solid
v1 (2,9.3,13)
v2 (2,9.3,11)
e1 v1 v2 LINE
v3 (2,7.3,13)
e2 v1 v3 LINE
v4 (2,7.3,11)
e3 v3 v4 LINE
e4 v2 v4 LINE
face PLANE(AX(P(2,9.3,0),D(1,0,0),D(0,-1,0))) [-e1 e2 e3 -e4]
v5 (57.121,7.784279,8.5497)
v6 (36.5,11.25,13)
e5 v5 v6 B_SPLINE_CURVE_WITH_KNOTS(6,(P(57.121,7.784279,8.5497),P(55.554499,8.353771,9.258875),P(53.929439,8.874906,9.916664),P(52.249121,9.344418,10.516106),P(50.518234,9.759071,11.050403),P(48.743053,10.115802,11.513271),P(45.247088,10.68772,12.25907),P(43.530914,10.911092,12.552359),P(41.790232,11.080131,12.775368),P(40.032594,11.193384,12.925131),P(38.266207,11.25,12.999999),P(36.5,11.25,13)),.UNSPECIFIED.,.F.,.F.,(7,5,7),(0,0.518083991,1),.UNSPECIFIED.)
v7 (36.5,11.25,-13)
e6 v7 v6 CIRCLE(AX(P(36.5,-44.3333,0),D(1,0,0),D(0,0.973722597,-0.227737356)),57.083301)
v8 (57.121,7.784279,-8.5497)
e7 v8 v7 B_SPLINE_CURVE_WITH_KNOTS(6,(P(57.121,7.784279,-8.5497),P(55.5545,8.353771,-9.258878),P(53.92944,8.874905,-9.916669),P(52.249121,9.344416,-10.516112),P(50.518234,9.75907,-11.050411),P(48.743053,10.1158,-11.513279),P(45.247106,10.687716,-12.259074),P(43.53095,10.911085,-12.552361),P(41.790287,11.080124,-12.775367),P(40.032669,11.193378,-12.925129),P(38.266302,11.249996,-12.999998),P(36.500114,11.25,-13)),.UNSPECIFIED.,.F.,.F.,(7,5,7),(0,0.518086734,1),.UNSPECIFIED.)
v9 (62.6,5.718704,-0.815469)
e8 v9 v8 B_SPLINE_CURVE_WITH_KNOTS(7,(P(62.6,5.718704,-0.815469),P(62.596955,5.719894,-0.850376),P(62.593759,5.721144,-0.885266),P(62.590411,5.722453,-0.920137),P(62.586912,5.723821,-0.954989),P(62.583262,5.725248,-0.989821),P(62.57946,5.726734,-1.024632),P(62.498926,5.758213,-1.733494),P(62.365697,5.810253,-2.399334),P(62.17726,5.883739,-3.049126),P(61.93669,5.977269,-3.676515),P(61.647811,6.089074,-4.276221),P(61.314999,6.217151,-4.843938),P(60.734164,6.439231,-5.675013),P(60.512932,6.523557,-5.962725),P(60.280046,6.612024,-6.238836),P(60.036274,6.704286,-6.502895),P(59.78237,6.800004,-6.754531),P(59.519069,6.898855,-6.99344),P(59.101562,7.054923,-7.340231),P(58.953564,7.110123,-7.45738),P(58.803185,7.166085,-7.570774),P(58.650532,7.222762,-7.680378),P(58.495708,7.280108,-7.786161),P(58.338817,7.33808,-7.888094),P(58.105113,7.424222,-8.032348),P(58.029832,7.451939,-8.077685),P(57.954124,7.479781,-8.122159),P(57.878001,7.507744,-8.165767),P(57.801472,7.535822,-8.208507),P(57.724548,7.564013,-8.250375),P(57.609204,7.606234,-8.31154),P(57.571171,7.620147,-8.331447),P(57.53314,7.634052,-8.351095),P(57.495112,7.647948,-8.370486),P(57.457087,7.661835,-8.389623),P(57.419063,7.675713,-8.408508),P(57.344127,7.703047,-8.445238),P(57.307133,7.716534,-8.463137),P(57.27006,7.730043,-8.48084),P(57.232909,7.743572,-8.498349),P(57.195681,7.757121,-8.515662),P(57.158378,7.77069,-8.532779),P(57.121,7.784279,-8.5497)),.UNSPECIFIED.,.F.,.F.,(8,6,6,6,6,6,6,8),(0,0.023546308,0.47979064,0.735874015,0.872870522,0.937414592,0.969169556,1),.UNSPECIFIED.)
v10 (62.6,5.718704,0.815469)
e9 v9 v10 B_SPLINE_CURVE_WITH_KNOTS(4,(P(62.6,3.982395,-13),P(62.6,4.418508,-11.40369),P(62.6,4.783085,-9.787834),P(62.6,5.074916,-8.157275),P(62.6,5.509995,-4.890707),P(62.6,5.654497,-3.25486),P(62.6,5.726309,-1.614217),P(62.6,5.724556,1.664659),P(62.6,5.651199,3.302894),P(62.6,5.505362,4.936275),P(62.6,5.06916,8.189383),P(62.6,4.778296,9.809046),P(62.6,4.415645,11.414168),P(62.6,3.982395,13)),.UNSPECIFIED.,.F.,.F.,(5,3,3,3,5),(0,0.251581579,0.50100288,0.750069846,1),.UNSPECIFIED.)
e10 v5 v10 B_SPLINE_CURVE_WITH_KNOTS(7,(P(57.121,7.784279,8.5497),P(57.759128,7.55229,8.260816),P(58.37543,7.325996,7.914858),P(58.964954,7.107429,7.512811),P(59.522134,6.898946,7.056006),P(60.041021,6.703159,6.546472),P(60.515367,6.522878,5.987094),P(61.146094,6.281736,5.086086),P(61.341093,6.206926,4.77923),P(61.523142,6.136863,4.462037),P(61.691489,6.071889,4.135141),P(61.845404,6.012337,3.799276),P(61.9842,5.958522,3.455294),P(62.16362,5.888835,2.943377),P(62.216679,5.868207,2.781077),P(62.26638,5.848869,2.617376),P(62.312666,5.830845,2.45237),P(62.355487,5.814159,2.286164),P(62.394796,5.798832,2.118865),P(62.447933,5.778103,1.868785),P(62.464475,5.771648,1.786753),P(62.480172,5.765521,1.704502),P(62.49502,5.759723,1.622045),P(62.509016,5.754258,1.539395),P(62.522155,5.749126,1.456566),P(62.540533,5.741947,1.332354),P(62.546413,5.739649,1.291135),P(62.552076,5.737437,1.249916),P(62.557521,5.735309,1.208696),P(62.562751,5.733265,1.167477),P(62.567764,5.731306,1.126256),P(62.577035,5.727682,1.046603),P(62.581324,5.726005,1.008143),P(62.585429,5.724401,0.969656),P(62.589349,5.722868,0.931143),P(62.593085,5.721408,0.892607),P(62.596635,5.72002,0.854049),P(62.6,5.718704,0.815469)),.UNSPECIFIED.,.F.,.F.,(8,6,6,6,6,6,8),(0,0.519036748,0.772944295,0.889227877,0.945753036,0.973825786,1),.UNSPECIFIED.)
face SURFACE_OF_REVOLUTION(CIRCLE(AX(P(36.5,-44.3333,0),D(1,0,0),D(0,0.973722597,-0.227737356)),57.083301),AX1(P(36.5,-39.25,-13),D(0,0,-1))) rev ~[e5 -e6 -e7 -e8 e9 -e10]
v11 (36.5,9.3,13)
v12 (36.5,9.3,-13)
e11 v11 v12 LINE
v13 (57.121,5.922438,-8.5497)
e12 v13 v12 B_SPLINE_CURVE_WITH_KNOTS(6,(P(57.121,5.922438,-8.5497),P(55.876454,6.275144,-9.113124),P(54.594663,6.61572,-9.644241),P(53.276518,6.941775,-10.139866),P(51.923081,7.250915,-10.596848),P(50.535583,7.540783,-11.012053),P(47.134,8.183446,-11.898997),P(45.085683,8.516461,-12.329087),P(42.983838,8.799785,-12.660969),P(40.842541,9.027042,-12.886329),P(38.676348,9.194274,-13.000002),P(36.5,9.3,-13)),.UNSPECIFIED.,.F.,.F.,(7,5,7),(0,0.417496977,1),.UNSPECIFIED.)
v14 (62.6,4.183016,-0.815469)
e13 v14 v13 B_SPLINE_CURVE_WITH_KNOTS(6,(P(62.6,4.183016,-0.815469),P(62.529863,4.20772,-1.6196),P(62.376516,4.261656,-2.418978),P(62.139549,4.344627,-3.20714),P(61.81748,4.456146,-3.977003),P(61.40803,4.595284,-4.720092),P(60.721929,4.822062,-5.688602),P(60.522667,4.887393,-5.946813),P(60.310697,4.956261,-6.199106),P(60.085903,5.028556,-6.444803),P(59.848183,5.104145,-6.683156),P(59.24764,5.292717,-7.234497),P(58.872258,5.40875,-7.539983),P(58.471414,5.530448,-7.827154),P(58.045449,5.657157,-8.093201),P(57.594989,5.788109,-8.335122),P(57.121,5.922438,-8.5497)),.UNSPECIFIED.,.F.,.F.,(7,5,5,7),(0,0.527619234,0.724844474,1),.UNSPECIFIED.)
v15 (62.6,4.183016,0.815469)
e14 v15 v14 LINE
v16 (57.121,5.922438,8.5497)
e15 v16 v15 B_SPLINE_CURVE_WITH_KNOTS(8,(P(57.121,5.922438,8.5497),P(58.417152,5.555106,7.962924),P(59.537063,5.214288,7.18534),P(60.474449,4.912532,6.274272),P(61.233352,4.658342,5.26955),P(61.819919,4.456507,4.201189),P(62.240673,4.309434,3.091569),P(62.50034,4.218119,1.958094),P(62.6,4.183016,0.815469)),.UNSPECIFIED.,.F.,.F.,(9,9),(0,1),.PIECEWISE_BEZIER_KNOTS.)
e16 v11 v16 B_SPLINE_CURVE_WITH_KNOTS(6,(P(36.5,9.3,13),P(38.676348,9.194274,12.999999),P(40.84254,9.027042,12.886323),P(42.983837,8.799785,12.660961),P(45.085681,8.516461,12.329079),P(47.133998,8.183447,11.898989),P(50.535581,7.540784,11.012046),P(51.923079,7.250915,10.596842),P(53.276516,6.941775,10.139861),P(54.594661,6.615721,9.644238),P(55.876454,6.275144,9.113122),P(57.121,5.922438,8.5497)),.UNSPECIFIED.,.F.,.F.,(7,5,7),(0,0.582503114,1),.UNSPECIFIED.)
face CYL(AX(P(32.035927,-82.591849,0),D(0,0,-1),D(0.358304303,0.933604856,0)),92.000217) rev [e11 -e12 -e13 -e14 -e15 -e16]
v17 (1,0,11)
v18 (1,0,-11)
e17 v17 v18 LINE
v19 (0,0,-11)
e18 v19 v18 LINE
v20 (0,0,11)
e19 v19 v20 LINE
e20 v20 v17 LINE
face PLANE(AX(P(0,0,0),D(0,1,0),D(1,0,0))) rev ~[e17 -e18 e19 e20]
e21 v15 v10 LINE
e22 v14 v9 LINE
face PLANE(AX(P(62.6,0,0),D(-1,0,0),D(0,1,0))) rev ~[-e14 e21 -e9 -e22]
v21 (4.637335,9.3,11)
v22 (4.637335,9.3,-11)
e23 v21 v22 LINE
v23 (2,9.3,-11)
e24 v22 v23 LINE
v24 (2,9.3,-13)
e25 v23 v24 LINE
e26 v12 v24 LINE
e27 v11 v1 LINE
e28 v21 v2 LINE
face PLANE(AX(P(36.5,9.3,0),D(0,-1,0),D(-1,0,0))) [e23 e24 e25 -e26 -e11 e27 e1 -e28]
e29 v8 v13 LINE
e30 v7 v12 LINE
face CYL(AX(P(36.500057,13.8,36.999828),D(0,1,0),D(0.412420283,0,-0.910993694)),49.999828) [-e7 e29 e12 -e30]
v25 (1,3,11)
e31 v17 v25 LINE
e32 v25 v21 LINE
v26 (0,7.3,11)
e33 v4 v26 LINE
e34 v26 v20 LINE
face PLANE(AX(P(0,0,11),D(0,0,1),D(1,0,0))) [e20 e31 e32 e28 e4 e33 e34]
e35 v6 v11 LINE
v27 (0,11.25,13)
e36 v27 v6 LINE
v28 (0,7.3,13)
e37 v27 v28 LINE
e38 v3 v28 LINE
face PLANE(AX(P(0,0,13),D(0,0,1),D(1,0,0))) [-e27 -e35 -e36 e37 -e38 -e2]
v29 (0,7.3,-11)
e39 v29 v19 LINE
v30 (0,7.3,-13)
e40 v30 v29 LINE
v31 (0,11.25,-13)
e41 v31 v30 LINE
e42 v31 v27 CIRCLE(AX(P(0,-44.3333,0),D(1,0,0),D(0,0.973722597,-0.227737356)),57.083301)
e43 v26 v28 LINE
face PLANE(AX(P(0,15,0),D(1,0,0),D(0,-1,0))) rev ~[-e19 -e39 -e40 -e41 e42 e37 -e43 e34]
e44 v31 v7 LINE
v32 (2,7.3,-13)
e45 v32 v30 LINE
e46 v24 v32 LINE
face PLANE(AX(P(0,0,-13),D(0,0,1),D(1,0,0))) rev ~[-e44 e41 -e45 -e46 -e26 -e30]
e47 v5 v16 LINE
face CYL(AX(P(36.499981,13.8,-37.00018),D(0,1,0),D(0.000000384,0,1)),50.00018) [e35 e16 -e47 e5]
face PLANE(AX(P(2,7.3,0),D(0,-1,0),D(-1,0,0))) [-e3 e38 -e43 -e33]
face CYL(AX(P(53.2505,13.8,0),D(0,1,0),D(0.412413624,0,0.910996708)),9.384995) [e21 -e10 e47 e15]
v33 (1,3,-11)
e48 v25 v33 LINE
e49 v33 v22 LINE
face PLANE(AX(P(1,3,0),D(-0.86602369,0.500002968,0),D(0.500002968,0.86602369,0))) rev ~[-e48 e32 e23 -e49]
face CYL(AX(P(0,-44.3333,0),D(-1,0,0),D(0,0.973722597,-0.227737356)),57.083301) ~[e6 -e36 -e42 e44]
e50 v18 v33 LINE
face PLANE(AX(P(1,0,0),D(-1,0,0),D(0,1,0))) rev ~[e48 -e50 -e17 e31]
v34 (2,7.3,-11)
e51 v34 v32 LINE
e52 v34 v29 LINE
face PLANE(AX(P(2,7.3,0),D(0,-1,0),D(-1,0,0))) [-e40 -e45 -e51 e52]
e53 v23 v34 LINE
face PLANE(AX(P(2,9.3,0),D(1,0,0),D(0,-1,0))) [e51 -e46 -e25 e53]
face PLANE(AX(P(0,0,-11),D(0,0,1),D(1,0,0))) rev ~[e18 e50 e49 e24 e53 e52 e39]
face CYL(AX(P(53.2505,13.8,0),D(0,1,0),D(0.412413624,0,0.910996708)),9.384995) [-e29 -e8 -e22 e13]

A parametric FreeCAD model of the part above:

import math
import FreeCAD as App
import Part
import Sketcher

V = App.Vector
Q = App.Units.Quantity

doc = App.newDocument("Part")
params = doc.addObject("Spreadsheet::Sheet", "Params")
for row, (alias, value) in enumerate([
    ("sketch1_height", "15 mm"),
    ("sketch1_width", "62.6 mm"),
    ("pad1_length", "26 mm"),
    ("sketch2_height", "26 mm"),
    ("sketch2_width", "9.5 mm"),
    ("pocket1_length", "36.5 mm"),
    ("sketch3_radius", "50 mm"),
    ("sketch3_width", "65 mm"),
    ("sketch3_height", "30 mm"),
    ("sketch3_height2", "26 mm"),
    ("sketch3_width2", "36.5 mm"),
    ("pocket2_length", "15 mm"),
    ("sketch4_height", "26 mm"),
    ("sketch4_width", "14.5 mm"),
    ("groove_angle", "35 deg"),
    ("sketch5_radius", "92 mm"),
    ("sketch5_width", "2 mm"),
    ("sketch5_width2", "65 mm"),
    ("sketch5_height", "59 mm"),
    ("sketch5_height2", "55 mm"),
    ("pocket3_length", "26 mm"),
    ("sketch6_width", "1 mm"),
    ("sketch6_height", "3 mm"),
    ("sketch6_height2", "10.75 mm"),
    ("pad2_length", "22 mm"),
], start=1):
    params.set(f"A{row}", alias)
    params.set(f"B{row}", "=" + value)
    params.setAlias(f"B{row}", alias)

body = doc.addObject("PartDesign::Body", "Body")

sketch1 = body.newObject("Sketcher::SketchObject", "Sketch")
sketch1.AttachmentSupport = (doc.getObject("XY_Plane"), [""])
sketch1.MapMode = "FlatFace"
sketch1.addGeometry(Part.LineSegment(V(63, 15, 0), V(0, 15, 0)), False)
sketch1.addGeometry(Part.LineSegment(V(0, 15, 0), V(0, 0, 0)), False)
sketch1.addGeometry(Part.LineSegment(V(0, 0, 0), V(63, 0, 0)), False)
sketch1.addGeometry(Part.LineSegment(V(63, 0, 0), V(63, 15, 0)), False)
sketch1.addConstraint(Sketcher.Constraint("Coincident", 0, 2, 1, 1))
sketch1.addConstraint(Sketcher.Constraint("Coincident", 1, 2, 2, 1))
sketch1.addConstraint(Sketcher.Constraint("Coincident", 2, 2, 3, 1))
sketch1.addConstraint(Sketcher.Constraint("Coincident", 3, 2, 0, 1))
sketch1.addConstraint(Sketcher.Constraint("Horizontal", 0))
sketch1.addConstraint(Sketcher.Constraint("Vertical", 1))
sketch1.addConstraint(Sketcher.Constraint("Horizontal", 2))
sketch1.addConstraint(Sketcher.Constraint("Vertical", 3))
sketch1.addConstraint(Sketcher.Constraint("Coincident", 1, 2, -1, 1))
sketch1.addConstraint(Sketcher.Constraint("DistanceY", 1, 2, 1, 1, 15.0))
sketch1.addConstraint(Sketcher.Constraint("DistanceX", 0, 2, 0, 1, 62.6))
sketch1.setExpression("Constraints[9]", "Params.sketch1_height")
sketch1.setExpression("Constraints[10]", "Params.sketch1_width")
pad1 = body.newObject("PartDesign::Pad", "Pad")
pad1.Profile = sketch1
pad1.setExpression("Length", "Params.pad1_length")
pad1.Midplane = True

sketch2 = body.newObject("Sketcher::SketchObject", "Sketch001")
sketch2.AttachmentSupport = (doc.getObject("YZ_Plane"), [""])
sketch2.MapMode = "FlatFace"
sketch2.addGeometry(Part.ArcOfCircle(Part.Circle(V(-44, 0, 0), V(0, 0, 1), 57), math.radians(-13), math.radians(13)), False)
sketch2.addGeometry(Part.LineSegment(V(11, -13, 0), V(21, -13, 0)), False)
sketch2.addGeometry(Part.LineSegment(V(21, -13, 0), V(21, 13, 0)), False)
sketch2.addGeometry(Part.LineSegment(V(21, 13, 0), V(11, 13, 0)), False)
sketch2.addConstraint(Sketcher.Constraint("Coincident", 0, 1, 1, 1))
sketch2.addConstraint(Sketcher.Constraint("Coincident", 1, 2, 2, 1))
sketch2.addConstraint(Sketcher.Constraint("Coincident", 2, 2, 3, 1))
sketch2.addConstraint(Sketcher.Constraint("Coincident", 3, 2, 0, 2))
sketch2.addConstraint(Sketcher.Constraint("Horizontal", 1))
sketch2.addConstraint(Sketcher.Constraint("Vertical", 2))
sketch2.addConstraint(Sketcher.Constraint("Horizontal", 3))
sketch2.addConstraint(Sketcher.Constraint("Symmetric", 0, 1, 3, 2, -1))
sketch2.addConstraint(Sketcher.Constraint("DistanceY", 2, 1, 2, 2, 26.0))
sketch2.addConstraint(Sketcher.Constraint("DistanceX", 1, 1, 1, 2, 9.5))
sketch2.addConstraint(Sketcher.Constraint("Radius", 0, 57.0833))
sketch2.addConstraint(Sketcher.Constraint("DistanceX", -1, 1, 0, 1, 11.25))
sketch2.setExpression("Constraints[8]", "Params.sketch2_height")
sketch2.setExpression("Constraints[9]", "Params.sketch2_width")
pocket1 = body.newObject("PartDesign::Pocket", "Pocket")
pocket1.Profile = sketch2
pocket1.setExpression("Length", "Params.pocket1_length")
pocket1.Reversed = True

sketch3 = body.newObject("Sketcher::SketchObject", "Sketch002")
sketch3.AttachmentSupport = (doc.getObject("XZ_Plane"), [""])
sketch3.MapMode = "FlatFace"
sketch3.AttachmentOffset = App.Placement(V(0, 0, -13.8), App.Rotation())
sketch3.addGeometry(Part.LineSegment(V(64, -16, 0), V(-1, -16, 0)), False)
sketch3.addGeometry(Part.LineSegment(V(-1, -16, 0), V(-1, 14, 0)), False)
sketch3.addGeometry(Part.LineSegment(V(-1, 14, 0), V(64, 14, 0)), False)
sketch3.addGeometry(Part.LineSegment(V(64, 14, 0), V(64, -16, 0)), False)
sketch3.addGeometry(Part.LineSegment(V(0, 13, 0), V(0, -13, 0)), False)
sketch3.addGeometry(Part.LineSegment(V(0, -13, 0), V(36, -13, 0)), False)
sketch3.addGeometry(Part.ArcOfCircle(Part.Circle(V(36, 37, 0), V(0, 0, 1), 50), math.radians(-90), math.radians(-66)), False)
sketch3.addGeometry(Part.ArcOfCircle(Part.Circle(V(53, 0, 0), V(0, 0, 1), 9), math.radians(-66), math.radians(66)), False)
sketch3.addGeometry(Part.ArcOfCircle(Part.Circle(V(36, -37, 0), V(0, 0, 1), 50), math.radians(66), math.radians(90)), False)
sketch3.addGeometry(Part.LineSegment(V(36, 13, 0), V(0, 13, 0)), False)
sketch3.addConstraint(Sketcher.Constraint("Coincident", 0, 2, 1, 1))
sketch3.addConstraint(Sketcher.Constraint("Coincident", 1, 2, 2, 1))
sketch3.addConstraint(Sketcher.Constraint("Coincident", 2, 2, 3, 1))
sketch3.addConstraint(Sketcher.Constraint("Coincident", 3, 2, 0, 1))
sketch3.addConstraint(Sketcher.Constraint("Coincident", 4, 2, 5, 1))
sketch3.addConstraint(Sketcher.Constraint("Tangent", 5, 2, 6, 1))
sketch3.addConstraint(Sketcher.Constraint("Tangent", 6, 2, 7, 1))
sketch3.addConstraint(Sketcher.Constraint("Tangent", 7, 2, 8, 1))
sketch3.addConstraint(Sketcher.Constraint("Tangent", 8, 2, 9, 1))
sketch3.addConstraint(Sketcher.Constraint("Coincident", 9, 2, 4, 1))
sketch3.addConstraint(Sketcher.Constraint("Horizontal", 0))
sketch3.addConstraint(Sketcher.Constraint("Vertical", 1))
sketch3.addConstraint(Sketcher.Constraint("Horizontal", 2))
sketch3.addConstraint(Sketcher.Constraint("Vertical", 3))
sketch3.addConstraint(Sketcher.Constraint("Vertical", 4))
sketch3.addConstraint(Sketcher.Constraint("Horizontal", 5))
sketch3.addConstraint(Sketcher.Constraint("Horizontal", 9))
sketch3.addConstraint(Sketcher.Constraint("Equal", 6, 8))
sketch3.addConstraint(Sketcher.Constraint("Symmetric", 4, 2, 9, 2, -1, 1))
sketch3.addConstraint(Sketcher.Constraint("PointOnObject", 7, 3, -1))
sketch3.addConstraint(Sketcher.Constraint("Radius", 6, 50.0))
sketch3.addConstraint(Sketcher.Constraint("DistanceX", 0, 2, 0, 1, 65.0))
sketch3.addConstraint(Sketcher.Constraint("DistanceY", 1, 1, 1, 2, 30.0))
sketch3.addConstraint(Sketcher.Constraint("DistanceY", 4, 2, 4, 1, 26.0))
sketch3.addConstraint(Sketcher.Constraint("DistanceX", 5, 1, 5, 2, 36.5))
sketch3.addConstraint(Sketcher.Constraint("DistanceX", 0, 2, -1, 1, 1.0))
sketch3.addConstraint(Sketcher.Constraint("DistanceY", 0, 2, -1, 1, 16.0))
sketch3.addConstraint(Sketcher.Constraint("Radius", 7, 9.385))
sketch3.setExpression("Constraints[20]", "Params.sketch3_radius")
sketch3.setExpression("Constraints[21]", "Params.sketch3_width")
sketch3.setExpression("Constraints[22]", "Params.sketch3_height")
sketch3.setExpression("Constraints[23]", "Params.sketch3_height2")
sketch3.setExpression("Constraints[24]", "Params.sketch3_width2")
pocket2 = body.newObject("PartDesign::Pocket", "Pocket001")
pocket2.Profile = sketch3
pocket2.setExpression("Length", "Params.pocket2_length")
pocket2.Reversed = True

sketch4 = body.newObject("Sketcher::SketchObject", "Sketch003")
sketch4.AttachmentSupport = (doc.getObject("YZ_Plane"), [""])
sketch4.MapMode = "FlatFace"
sketch4.AttachmentOffset = App.Placement(V(0, 0, 36.5), App.Rotation())
sketch4.addGeometry(Part.ArcOfCircle(Part.Circle(V(-44, 0, 0), V(0, 0, 1), 57), math.radians(-13), math.radians(13)), False)
sketch4.addGeometry(Part.LineSegment(V(11, -13, 0), V(26, -13, 0)), False)
sketch4.addGeometry(Part.LineSegment(V(26, -13, 0), V(26, 13, 0)), False)
sketch4.addGeometry(Part.LineSegment(V(26, 13, 0), V(11, 13, 0)), False)
sketch4.addGeometry(Part.LineSegment(V(-39, 13, 0), V(-39, -13, 0)), True)
sketch4.addConstraint(Sketcher.Constraint("Coincident", 0, 1, 1, 1))
sketch4.addConstraint(Sketcher.Constraint("Coincident", 1, 2, 2, 1))
sketch4.addConstraint(Sketcher.Constraint("Coincident", 2, 2, 3, 1))
sketch4.addConstraint(Sketcher.Constraint("Coincident", 3, 2, 0, 2))
sketch4.addConstraint(Sketcher.Constraint("Horizontal", 1))
sketch4.addConstraint(Sketcher.Constraint("Vertical", 2))
sketch4.addConstraint(Sketcher.Constraint("Horizontal", 3))
sketch4.addConstraint(Sketcher.Constraint("Vertical", 4))
sketch4.addConstraint(Sketcher.Constraint("Symmetric", 0, 1, 3, 2, -1))
sketch4.addConstraint(Sketcher.Constraint("Horizontal", 3, 2, 4, 1))
sketch4.addConstraint(Sketcher.Constraint("Horizontal", 1, 2, 4, 2))
sketch4.addConstraint(Sketcher.Constraint("DistanceY", 2, 1, 2, 2, 26.0))
sketch4.addConstraint(Sketcher.Constraint("DistanceX", 1, 1, 1, 2, 14.5))
sketch4.addConstraint(Sketcher.Constraint("DistanceX", 4, 1, 2, 2, 65.0))
sketch4.addConstraint(Sketcher.Constraint("Radius", 0, 57.0833))
sketch4.addConstraint(Sketcher.Constraint("DistanceX", -1, 1, 0, 1, 11.25))
sketch4.setExpression("Constraints[11]", "Params.sketch4_height")
sketch4.setExpression("Constraints[12]", "Params.sketch4_width")
groove = body.newObject("PartDesign::Groove", "Groove")
groove.Profile = sketch4
groove.ReferenceAxis = (sketch4, ["Axis0"])
groove.setExpression("Angle", "Params.groove_angle")

sketch5 = body.newObject("Sketcher::SketchObject", "Sketch004")
sketch5.AttachmentSupport = (doc.getObject("XY_Plane"), [""])
sketch5.MapMode = "FlatFace"
sketch5.addGeometry(Part.LineSegment(V(2, 7.3, 0), V(0, 7.3, 0)), False)
sketch5.addGeometry(Part.LineSegment(V(0, 7.3, 0), V(0, -51.7, 0)), False)
sketch5.addGeometry(Part.LineSegment(V(0, -51.7, 0), V(65, -51.7, 0)), False)
sketch5.addGeometry(Part.LineSegment(V(65, -51.7, 0), V(65, 3.3, 0)), False)
sketch5.addGeometry(Part.ArcOfCircle(Part.Circle(V(32, -82.6, 0), V(0, 0, 1), 92), math.radians(69), math.radians(87.22)), False)
sketch5.addGeometry(Part.LineSegment(V(36.5, 9.3, 0), V(2, 9.3, 0)), False)
sketch5.addGeometry(Part.LineSegment(V(2, 9.3, 0), V(2, 7.3, 0)), False)
sketch5.addConstraint(Sketcher.Constraint("Coincident", 0, 2, 1, 1))
sketch5.addConstraint(Sketcher.Constraint("Coincident", 1, 2, 2, 1))
sketch5.addConstraint(Sketcher.Constraint("Coincident", 2, 2, 3, 1))
sketch5.addConstraint(Sketcher.Constraint("Coincident", 3, 2, 4, 1))
sketch5.addConstraint(Sketcher.Constraint("Coincident", 4, 2, 5, 1))
sketch5.addConstraint(Sketcher.Constraint("Coincident", 5, 2, 6, 1))
sketch5.addConstraint(Sketcher.Constraint("Coincident", 6, 2, 0, 1))
sketch5.addConstraint(Sketcher.Constraint("Horizontal", 0))
sketch5.addConstraint(Sketcher.Constraint("Vertical", 1))
sketch5.addConstraint(Sketcher.Constraint("Horizontal", 2))
sketch5.addConstraint(Sketcher.Constraint("Vertical", 3))
sketch5.addConstraint(Sketcher.Constraint("Horizontal", 5))
sketch5.addConstraint(Sketcher.Constraint("Vertical", 6))
sketch5.addConstraint(Sketcher.Constraint("PointOnObject", 0, 2, -2))
sketch5.addConstraint(Sketcher.Constraint("Equal", 0, 6))
sketch5.addConstraint(Sketcher.Constraint("Radius", 4, 92.0))
sketch5.addConstraint(Sketcher.Constraint("DistanceX", 0, 2, 0, 1, 2.0))
sketch5.addConstraint(Sketcher.Constraint("DistanceX", 2, 1, 2, 2, 65.0))
sketch5.addConstraint(Sketcher.Constraint("DistanceY", 1, 2, 1, 1, 59.0))
sketch5.addConstraint(Sketcher.Constraint("DistanceY", 3, 1, 3, 2, 55.0))
sketch5.addConstraint(Sketcher.Constraint("DistanceX", 5, 2, 5, 1, 34.5))
sketch5.addConstraint(Sketcher.Constraint("DistanceY", -1, 1, 0, 2, 7.3))
sketch5.setExpression("Constraints[15]", "Params.sketch5_radius")
sketch5.setExpression("Constraints[16]", "Params.sketch5_width")
sketch5.setExpression("Constraints[17]", "Params.sketch5_width2")
sketch5.setExpression("Constraints[18]", "Params.sketch5_height")
sketch5.setExpression("Constraints[19]", "Params.sketch5_height2")
pocket3 = body.newObject("PartDesign::Pocket", "Pocket002")
pocket3.Profile = sketch5
pocket3.setExpression("Length", "Params.pocket3_length")
pocket3.Midplane = True

sketch6 = body.newObject("Sketcher::SketchObject", "Sketch005")
sketch6.AttachmentSupport = (doc.getObject("XY_Plane"), [""])
sketch6.MapMode = "FlatFace"
sketch6.addGeometry(Part.LineSegment(V(5.5, 10.8, 0), V(0, 10.8, 0)), False)
sketch6.addGeometry(Part.LineSegment(V(0, 10.8, 0), V(0, 0, 0)), False)
sketch6.addGeometry(Part.LineSegment(V(0, 0, 0), V(1, 0, 0)), False)
sketch6.addGeometry(Part.LineSegment(V(1, 0, 0), V(1, 3, 0)), False)
sketch6.addGeometry(Part.LineSegment(V(1, 3, 0), V(5.5, 10.8, 0)), False)
sketch6.addConstraint(Sketcher.Constraint("Coincident", 0, 2, 1, 1))
sketch6.addConstraint(Sketcher.Constraint("Coincident", 1, 2, 2, 1))
sketch6.addConstraint(Sketcher.Constraint("Coincident", 2, 2, 3, 1))
sketch6.addConstraint(Sketcher.Constraint("Coincident", 3, 2, 4, 1))
sketch6.addConstraint(Sketcher.Constraint("Coincident", 4, 2, 0, 1))
sketch6.addConstraint(Sketcher.Constraint("Horizontal", 0))
sketch6.addConstraint(Sketcher.Constraint("Vertical", 1))
sketch6.addConstraint(Sketcher.Constraint("Horizontal", 2))
sketch6.addConstraint(Sketcher.Constraint("Vertical", 3))
sketch6.addConstraint(Sketcher.Constraint("Coincident", 1, 2, -1, 1))
sketch6.addConstraint(Sketcher.Constraint("DistanceX", 2, 1, 2, 2, 1.0))
sketch6.addConstraint(Sketcher.Constraint("DistanceY", 3, 1, 3, 2, 3.0))
sketch6.addConstraint(Sketcher.Constraint("Angle", 4, Q("59.9998 deg")))
sketch6.addConstraint(Sketcher.Constraint("DistanceY", 1, 2, 1, 1, 10.75))
sketch6.setExpression("Constraints[10]", "Params.sketch6_width")
sketch6.setExpression("Constraints[11]", "Params.sketch6_height")
sketch6.setExpression("Constraints[13]", "Params.sketch6_height2")
pad2 = body.newObject("PartDesign::Pad", "Pad001")
pad2.Profile = sketch6
pad2.setExpression("Length", "Params.pad2_length")
pad2.Midplane = True

doc.recompute()
